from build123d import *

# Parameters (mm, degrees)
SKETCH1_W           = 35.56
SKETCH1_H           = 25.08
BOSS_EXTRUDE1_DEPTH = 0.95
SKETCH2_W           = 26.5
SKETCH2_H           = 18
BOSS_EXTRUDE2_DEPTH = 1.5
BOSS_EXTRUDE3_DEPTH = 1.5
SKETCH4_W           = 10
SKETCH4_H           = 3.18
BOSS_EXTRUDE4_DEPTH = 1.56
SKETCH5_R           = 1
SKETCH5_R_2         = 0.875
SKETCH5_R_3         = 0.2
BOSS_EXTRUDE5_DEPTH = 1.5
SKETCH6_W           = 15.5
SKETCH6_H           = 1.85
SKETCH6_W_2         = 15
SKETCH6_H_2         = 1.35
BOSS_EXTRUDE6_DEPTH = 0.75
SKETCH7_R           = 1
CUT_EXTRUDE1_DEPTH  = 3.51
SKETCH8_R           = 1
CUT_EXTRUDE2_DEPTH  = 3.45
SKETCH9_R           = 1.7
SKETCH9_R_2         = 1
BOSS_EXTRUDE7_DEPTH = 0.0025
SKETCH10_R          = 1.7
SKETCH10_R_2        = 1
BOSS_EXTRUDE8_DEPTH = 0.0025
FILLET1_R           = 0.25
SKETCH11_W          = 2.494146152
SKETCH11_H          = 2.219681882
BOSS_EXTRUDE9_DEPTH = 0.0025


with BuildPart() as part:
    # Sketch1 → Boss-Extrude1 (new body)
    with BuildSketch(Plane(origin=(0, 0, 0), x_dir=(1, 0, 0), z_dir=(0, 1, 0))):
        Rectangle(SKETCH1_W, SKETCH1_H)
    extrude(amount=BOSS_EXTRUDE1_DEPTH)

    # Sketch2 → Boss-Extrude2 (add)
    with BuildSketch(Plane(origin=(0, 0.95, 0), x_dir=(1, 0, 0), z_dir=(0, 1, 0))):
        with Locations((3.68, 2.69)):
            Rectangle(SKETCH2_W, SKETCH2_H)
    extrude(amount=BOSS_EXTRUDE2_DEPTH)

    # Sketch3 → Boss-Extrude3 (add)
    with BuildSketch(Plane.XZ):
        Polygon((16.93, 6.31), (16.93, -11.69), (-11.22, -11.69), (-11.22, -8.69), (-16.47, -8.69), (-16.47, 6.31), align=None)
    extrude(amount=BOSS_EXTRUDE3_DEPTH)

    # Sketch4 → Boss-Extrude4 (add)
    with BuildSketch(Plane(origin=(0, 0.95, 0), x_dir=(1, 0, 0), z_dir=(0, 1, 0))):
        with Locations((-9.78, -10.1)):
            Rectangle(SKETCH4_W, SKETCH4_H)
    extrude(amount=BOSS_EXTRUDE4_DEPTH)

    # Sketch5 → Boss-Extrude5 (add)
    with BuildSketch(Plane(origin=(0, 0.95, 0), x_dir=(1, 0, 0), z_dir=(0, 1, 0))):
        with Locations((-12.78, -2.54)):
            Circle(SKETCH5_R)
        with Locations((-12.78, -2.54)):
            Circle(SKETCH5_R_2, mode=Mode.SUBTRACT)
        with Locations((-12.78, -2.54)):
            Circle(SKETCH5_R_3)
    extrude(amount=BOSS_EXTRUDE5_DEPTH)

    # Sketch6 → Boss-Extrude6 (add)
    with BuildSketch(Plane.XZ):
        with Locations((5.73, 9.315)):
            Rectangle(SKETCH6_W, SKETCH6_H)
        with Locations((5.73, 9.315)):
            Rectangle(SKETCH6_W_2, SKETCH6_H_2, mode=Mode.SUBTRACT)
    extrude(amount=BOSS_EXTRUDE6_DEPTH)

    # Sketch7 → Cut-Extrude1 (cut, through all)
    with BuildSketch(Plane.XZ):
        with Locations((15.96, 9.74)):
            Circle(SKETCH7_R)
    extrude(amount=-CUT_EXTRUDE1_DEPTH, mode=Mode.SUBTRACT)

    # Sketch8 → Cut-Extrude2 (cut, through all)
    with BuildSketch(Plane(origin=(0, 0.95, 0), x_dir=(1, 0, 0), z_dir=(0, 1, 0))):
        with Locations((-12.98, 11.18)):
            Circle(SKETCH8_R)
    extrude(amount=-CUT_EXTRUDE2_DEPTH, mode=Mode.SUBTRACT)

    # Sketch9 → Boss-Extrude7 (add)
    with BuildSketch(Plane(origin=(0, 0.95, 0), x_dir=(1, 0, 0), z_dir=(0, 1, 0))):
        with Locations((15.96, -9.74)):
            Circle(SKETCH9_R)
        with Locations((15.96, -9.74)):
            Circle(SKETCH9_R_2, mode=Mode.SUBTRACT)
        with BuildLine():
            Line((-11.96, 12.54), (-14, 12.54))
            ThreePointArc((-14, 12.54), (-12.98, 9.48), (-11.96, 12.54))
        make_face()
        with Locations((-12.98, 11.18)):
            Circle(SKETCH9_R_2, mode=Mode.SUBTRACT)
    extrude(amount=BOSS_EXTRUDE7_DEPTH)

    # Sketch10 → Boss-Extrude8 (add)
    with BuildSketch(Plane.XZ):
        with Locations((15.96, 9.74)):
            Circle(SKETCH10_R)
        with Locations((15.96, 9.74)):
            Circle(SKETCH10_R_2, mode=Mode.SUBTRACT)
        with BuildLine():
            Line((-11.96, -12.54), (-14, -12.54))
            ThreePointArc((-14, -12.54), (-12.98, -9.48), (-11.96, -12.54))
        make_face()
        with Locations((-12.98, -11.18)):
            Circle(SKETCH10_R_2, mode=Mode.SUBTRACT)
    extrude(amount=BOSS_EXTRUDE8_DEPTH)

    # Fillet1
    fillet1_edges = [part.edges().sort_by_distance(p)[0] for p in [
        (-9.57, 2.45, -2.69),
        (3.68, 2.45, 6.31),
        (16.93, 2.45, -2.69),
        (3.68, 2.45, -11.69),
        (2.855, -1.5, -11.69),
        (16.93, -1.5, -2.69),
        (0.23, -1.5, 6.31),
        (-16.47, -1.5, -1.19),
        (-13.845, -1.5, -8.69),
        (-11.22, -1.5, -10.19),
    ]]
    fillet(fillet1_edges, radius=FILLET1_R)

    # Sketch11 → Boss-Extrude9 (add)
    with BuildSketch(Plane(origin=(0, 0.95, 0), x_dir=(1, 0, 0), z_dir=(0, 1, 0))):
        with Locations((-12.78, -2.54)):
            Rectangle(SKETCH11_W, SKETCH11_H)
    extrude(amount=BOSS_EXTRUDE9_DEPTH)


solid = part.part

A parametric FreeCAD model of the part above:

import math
import FreeCAD as App
import Part
import Sketcher

V = App.Vector


def edges_at(feature, points):
    """Names of the edges that pass closest to the given points."""
    edges = feature.Shape.Edges
    near = lambda p: min(range(len(edges)), key=lambda i: edges[i].distToShape(Part.Vertex(*p))[0])
    return sorted({f"Edge{near(p) + 1}" for p in points})


def add_polygon(sketch, points):
    """Adds a closed chain of lines whose ends are joined by coincident constraints."""
    first, n = sketch.GeometryCount, len(points)
    for a, b in zip(points, points[1:] + points[:1]):
        sketch.addGeometry(Part.LineSegment(App.Vector(*a, 0), App.Vector(*b, 0)), False)
    for i in range(n):
        sketch.addConstraint(Sketcher.Constraint("Coincident", first + i, 2, first + (i + 1) % n, 1))

doc = App.newDocument("Part")
body = doc.addObject("PartDesign::Body", "Body")

# Sketch on XZ plane
sketch1 = body.newObject("Sketcher::SketchObject", "Sketch")
sketch1.AttachmentSupport = (doc.getObject("XZ_Plane"), [""])
sketch1.MapMode = "FlatFace"
add_polygon(sketch1, [(-17.78, -12.54), (-17.78, 12.54), (17.78, 12.54), (17.78, -12.54)])  # lines 0-3
sketch1.addConstraint([
    Sketcher.Constraint("Vertical", 0),
    Sketcher.Constraint("Horizontal", 1),
    Sketcher.Constraint("Vertical", 2),
    Sketcher.Constraint("Horizontal", 3),
    Sketcher.Constraint("Symmetric", 0, 2, 2, 2, -1, 1),
    Sketcher.Constraint("DistanceX", 1, 1, 1, 2, 35.56),
    Sketcher.Constraint("DistanceY", 0, 1, 0, 2, 25.08),
])
pad1 = body.newObject("PartDesign::Pad", "Pad")
pad1.Profile = sketch1
pad1.Length = 0.95
pad1.Reversed = True

# Sketch on XZ plane
sketch2 = body.newObject("Sketcher::SketchObject", "Sketch001")
sketch2.AttachmentSupport = (doc.getObject("XZ_Plane"), [""])
sketch2.MapMode = "FlatFace"
sketch2.AttachmentOffset = App.Placement(V(0, 0, -0.95), App.Rotation())
add_polygon(sketch2, [(-9.57, -11.69), (-9.57, 6.31), (16.93, 6.31), (16.93, -11.69)])  # lines 0-3
sketch2.addConstraint([
    Sketcher.Constraint("Vertical", 0),
    Sketcher.Constraint("Horizontal", 1),
    Sketcher.Constraint("Vertical", 2),
    Sketcher.Constraint("Horizontal", 3),
    Sketcher.Constraint("DistanceY", 0, 1, 0, 2, 18.0),
    Sketcher.Constraint("DistanceX", 1, 1, 1, 2, 26.5),
    Sketcher.Constraint("DistanceX", 0, 2, -1, 1, 9.57),
    Sketcher.Constraint("DistanceY", -1, 1, 0, 2, 6.31),
])
pad2 = body.newObject("PartDesign::Pad", "Pad001")
pad2.Profile = sketch2
pad2.Length = 1.5
pad2.Reversed = True

# Sketch on XZ plane
sketch3 = body.newObject("Sketcher::SketchObject", "Sketch002")
sketch3.AttachmentSupport = (doc.getObject("XZ_Plane"), [""])
sketch3.MapMode = "FlatFace"
add_polygon(sketch3, [(16.93, -11.69), (16.93, 6.31), (-16.47, 6.31), (-16.47, -8.69), (-11.22, -8.69), (-11.22, -11.69)])  # lines 0-5
sketch3.addConstraint([
    Sketcher.Constraint("Vertical", 0),
    Sketcher.Constraint("Horizontal", 1),
    Sketcher.Constraint("Vertical", 2),
    Sketcher.Constraint("Horizontal", 3),
    Sketcher.Constraint("Vertical", 4),
    Sketcher.Constraint("Horizontal", 5),
    Sketcher.Constraint("DistanceY", 0, 1, 0, 2, 18.0),
    Sketcher.Constraint("DistanceY", 2, 2, 2, 1, 15.0),
    Sketcher.Constraint("DistanceX", 1, 2, 1, 1, 33.4),
    Sketcher.Constraint("DistanceX", 3, 1, 3, 2, 5.25),
    Sketcher.Constraint("DistanceX", -1, 1, 0, 2, 16.93),
    Sketcher.Constraint("DistanceY", -1, 1, 0, 2, 6.31),
])
pad3 = body.newObject("PartDesign::Pad", "Pad002")
pad3.Profile = sketch3
pad3.Length = 1.5

# Sketch on XZ plane
sketch4 = body.newObject("Sketcher::SketchObject", "Sketch003")
sketch4.AttachmentSupport = (doc.getObject("XZ_Plane"), [""])
sketch4.MapMode = "FlatFace"
sketch4.AttachmentOffset = App.Placement(V(0, 0, -0.95), App.Rotation())
add_polygon(sketch4, [(-14.78, 8.51), (-14.78, 11.69), (-4.78, 11.69), (-4.78, 8.51)])  # lines 0-3
sketch4.addConstraint([
    Sketcher.Constraint("Vertical", 0),
    Sketcher.Constraint("Horizontal", 1),
    Sketcher.Constraint("Vertical", 2),
    Sketcher.Constraint("Horizontal", 3),
    Sketcher.Constraint("DistanceX", 1, 1, 1, 2, 10.0),
    Sketcher.Constraint("DistanceY", 0, 1, 0, 2, 3.18),
    Sketcher.Constraint("DistanceX", 0, 2, -1, 1, 14.78),
    Sketcher.Constraint("DistanceY", -1, 1, 0, 2, 11.69),
])
pad4 = body.newObject("PartDesign::Pad", "Pad003")
pad4.Profile = sketch4
pad4.Length = 1.56
pad4.Reversed = True

# Sketch on XZ plane
sketch5 = body.newObject("Sketcher::SketchObject", "Sketch004")
sketch5.AttachmentSupport = (doc.getObject("XZ_Plane"), [""])
sketch5.MapMode = "FlatFace"
sketch5.AttachmentOffset = App.Placement(V(0, 0, -0.95), App.Rotation())
sketch5.addGeometry([
    Part.Circle(V(-12.78, 2.54, 0), V(0, 0, 1), 1),
    Part.Circle(V(-12.78, 2.54, 0), V(0, 0, 1), 0.875),
    Part.Circle(V(-12.78, 2.54, 0), V(0, 0, 1), 0.2),
], False)
sketch5.addConstraint([
    Sketcher.Constraint("Coincident", 1, 3, 0, 3),
    Sketcher.Constraint("Coincident", 2, 3, 0, 3),
    Sketcher.Constraint("Diameter", 0, 2.0),
    Sketcher.Constraint("Diameter", 2, 0.4),
    Sketcher.Constraint("Diameter", 1, 1.75),
    Sketcher.Constraint("DistanceX", 0, 3, -1, 1, 12.78),
    Sketcher.Constraint("DistanceY", -1, 1, 0, 3, 2.54),
])
pad5 = body.newObject("PartDesign::Pad", "Pad004")
pad5.Profile = sketch5
pad5.Length = 1.5
pad5.Reversed = True

# Sketch on XZ plane
sketch6 = body.newObject("Sketcher::SketchObject", "Sketch005")
sketch6.AttachmentSupport = (doc.getObject("XZ_Plane"), [""])
sketch6.MapMode = "FlatFace"
add_polygon(sketch6, [(-2.02, 10.24), (-2.02, 8.39), (13.48, 8.39), (13.48, 10.24)])  # lines 0-3
add_polygon(sketch6, [(13.23, 8.64), (-1.77, 8.64), (-1.77, 9.99), (13.23, 9.99)])  # lines 4-7
sketch6.addConstraint([
    Sketcher.Constraint("Vertical", 0),
    Sketcher.Constraint("Horizontal", 1),
    Sketcher.Constraint("Vertical", 2),
    Sketcher.Constraint("Horizontal", 3),
    Sketcher.Constraint("Horizontal", 4),
    Sketcher.Constraint("Vertical", 5),
    Sketcher.Constraint("Horizontal", 6),
    Sketcher.Constraint("Vertical", 7),
    Sketcher.Constraint("DistanceX", 4, 2, 4, 1, 15.0),
    Sketcher.Constraint("DistanceX", 1, 1, 1, 2, 15.5),
    Sketcher.Constraint("DistanceY", 0, 2, 0, 1, 1.85),
    Sketcher.Constraint("DistanceY", 5, 1, 5, 2, 1.35),
    Sketcher.Constraint("DistanceY", 4, 2, 3, 2, 1.6),
    Sketcher.Constraint("DistanceX", 0, 2, -1, 1, 2.02),
    Sketcher.Constraint("DistanceY", -1, 1, 0, 2, 8.39),
    Sketcher.Constraint("DistanceX", 4, 2, -1, 1, 1.77),
])
pad6 = body.newObject("PartDesign::Pad", "Pad005")
pad6.Profile = sketch6
pad6.Length = 0.75

# Sketch on XZ plane
sketch7 = body.newObject("Sketcher::SketchObject", "Sketch006")
sketch7.AttachmentSupport = (doc.getObject("XZ_Plane"), [""])
sketch7.MapMode = "FlatFace"
sketch7.addGeometry(Part.Circle(V(15.96, 9.74, 0), V(0, 0, 1), 1), False)
sketch7.addConstraint([
    Sketcher.Constraint("Diameter", 0, 2.0),
    Sketcher.Constraint("DistanceX", -1, 1, 0, 3, 15.96),
    Sketcher.Constraint("DistanceY", -1, 1, 0, 3, 9.74),
])
pocket1 = body.newObject("PartDesign::Pocket", "Pocket")
pocket1.Profile = sketch7
pocket1.Type = "ThroughAll"

# Sketch on XZ plane
sketch8 = body.newObject("Sketcher::SketchObject", "Sketch007")
sketch8.AttachmentSupport = (doc.getObject("XZ_Plane"), [""])
sketch8.MapMode = "FlatFace"
sketch8.AttachmentOffset = App.Placement(V(0, 0, -0.95), App.Rotation())
sketch8.addGeometry(Part.Circle(V(-12.98, -11.18, 0), V(0, 0, 1), 1), False)
sketch8.addConstraint([
    Sketcher.Constraint("Diameter", 0, 2.0),
    Sketcher.Constraint("DistanceX", 0, 3, -1, 1, 12.98),
    Sketcher.Constraint("DistanceY", 0, 3, -1, 1, 11.18),
])
pocket2 = body.newObject("PartDesign::Pocket", "Pocket001")
pocket2.Profile = sketch8
pocket2.Type = "ThroughAll"
pocket2.Reversed = True

# Sketch on XZ plane
sketch9 = body.newObject("Sketcher::SketchObject", "Sketch008")
sketch9.AttachmentSupport = (doc.getObject("XZ_Plane"), [""])
sketch9.MapMode = "FlatFace"
sketch9.AttachmentOffset = App.Placement(V(0, 0, -0.95), App.Rotation())
sketch9.addGeometry([
    Part.Circle(V(15.96, 9.74, 0), V(0, 0, 1), 1.7),  # 0
    Part.Circle(V(15.96, 9.74, 0), V(0, 0, 1), 1),  # 1
    Part.LineSegment(V(-11.96, -12.54, 0), V(-14, -12.54, 0)),  # 2
    Part.ArcOfCircle(Part.Circle(V(-12.98, -11.18, 0), V(0, 0, 1), 1.7), math.radians(-53.130102), math.radians(233.130102)),  # 3
    Part.Circle(V(-12.98, -11.18, 0), V(0, 0, 1), 1),  # 4
], False)
sketch9.addConstraint([
    Sketcher.Constraint("Coincident", 2, 1, 3, 1),
    Sketcher.Constraint("Coincident", 3, 2, 2, 2),
    Sketcher.Constraint("Horizontal", 2),
    Sketcher.Constraint("Coincident", 1, 3, 0, 3),
    Sketcher.Constraint("Coincident", 4, 3, 3, 3),
    Sketcher.Constraint("Equal", 0, 3),
    Sketcher.Constraint("Equal", 1, 4),
    Sketcher.Constraint("Diameter", 1, 2.0),
    Sketcher.Constraint("Diameter", 0, 3.4),
    Sketcher.Constraint("DistanceX", 3, 2, -1, 1, 14.0),
    Sketcher.Constraint("DistanceX", 2, 2, 2, 1, 2.04),
    Sketcher.Constraint("DistanceX", -1, 1, 0, 3, 15.96),
    Sketcher.Constraint("DistanceY", -1, 1, 0, 3, 9.74),
    Sketcher.Constraint("DistanceY", 3, 3, -1, 1, 11.18),
])
pad7 = body.newObject("PartDesign::Pad", "Pad006")
pad7.Profile = sketch9
pad7.Length = 0.0025
pad7.Reversed = True

# Sketch on XZ plane
sketch10 = body.newObject("Sketcher::SketchObject", "Sketch009")
sketch10.AttachmentSupport = (doc.getObject("XZ_Plane"), [""])
sketch10.MapMode = "FlatFace"
sketch10.addGeometry([
    Part.Circle(V(15.96, 9.74, 0), V(0, 0, 1), 1.7),  # 0
    Part.Circle(V(15.96, 9.74, 0), V(0, 0, 1), 1),  # 1
    Part.LineSegment(V(-14, -12.54, 0), V(-11.96, -12.54, 0)),  # 2
    Part.ArcOfCircle(Part.Circle(V(-12.98, -11.18, 0), V(0, 0, 1), 1.7), math.radians(-53.130102), math.radians(233.130102)),  # 3
    Part.Circle(V(-12.98, -11.18, 0), V(0, 0, 1), 1),  # 4
], False)
sketch10.addConstraint([
    Sketcher.Constraint("Coincident", 2, 1, 3, 2),
    Sketcher.Constraint("Coincident", 3, 1, 2, 2),
    Sketcher.Constraint("Horizontal", 2),
    Sketcher.Constraint("Coincident", 1, 3, 0, 3),
    Sketcher.Constraint("Coincident", 4, 3, 3, 3),
    Sketcher.Constraint("Equal", 0, 3),
    Sketcher.Constraint("Equal", 1, 4),
    Sketcher.Constraint("Diameter", 1, 2.0),
    Sketcher.Constraint("Diameter", 0, 3.4),
    Sketcher.Constraint("DistanceX", 2, 1, -1, 1, 14.0),
    Sketcher.Constraint("DistanceX", 2, 1, 2, 2, 2.04),
    Sketcher.Constraint("DistanceX", -1, 1, 0, 3, 15.96),
    Sketcher.Constraint("DistanceY", -1, 1, 0, 3, 9.74),
    Sketcher.Constraint("DistanceY", 3, 3, -1, 1, 11.18),
])
pad8 = body.newObject("PartDesign::Pad", "Pad007")
pad8.Profile = sketch10
pad8.Length = 0.0025
doc.recompute()

fillet = body.newObject("PartDesign::Fillet", "Fillet")
fillet.Base = (pad8, edges_at(pad8, [
    (-9.57, 2.45, -2.69),
    (3.68, 2.45, 6.31),
    (16.93, 2.45, -2.69),
    (3.68, 2.45, -11.69),
    (2.855, -1.5, -11.69),
    (16.93, -1.5, -2.69),
    (0.23, -1.5, 6.31),
    (-16.47, -1.5, -1.19),
    (-13.845, -1.5, -8.69),
    (-11.22, -1.5, -10.19),
]))
fillet.Radius = 0.25

# Sketch on XZ plane
sketch11 = body.newObject("Sketcher::SketchObject", "Sketch010")
sketch11.AttachmentSupport = (doc.getObject("XZ_Plane"), [""])
sketch11.MapMode = "FlatFace"
sketch11.AttachmentOffset = App.Placement(V(0, 0, -0.95), App.Rotation())
add_polygon(sketch11, [(-14.027073, 1.430159), (-14.027073, 3.649841), (-11.532927, 3.649841), (-11.532927, 1.430159)])  # lines 0-3
sketch11.addConstraint([
    Sketcher.Constraint("Vertical", 0),
    Sketcher.Constraint("Horizontal", 1),
    Sketcher.Constraint("Vertical", 2),
    Sketcher.Constraint("Horizontal", 3),
    Sketcher.Constraint("DistanceY", 0, 1, 0, 2, 2.219682),
    Sketcher.Constraint("DistanceX", 1, 1, 1, 2, 2.494146),
    Sketcher.Constraint("DistanceY", -1, 1, 0, 2, 3.649841),
    Sketcher.Constraint("DistanceX", 0, 2, -1, 1, 14.027073),
])
pad9 = body.newObject("PartDesign::Pad", "Pad008")
pad9.Profile = sketch11
pad9.Length = 0.0025
pad9.Reversed = True

doc.recompute()
